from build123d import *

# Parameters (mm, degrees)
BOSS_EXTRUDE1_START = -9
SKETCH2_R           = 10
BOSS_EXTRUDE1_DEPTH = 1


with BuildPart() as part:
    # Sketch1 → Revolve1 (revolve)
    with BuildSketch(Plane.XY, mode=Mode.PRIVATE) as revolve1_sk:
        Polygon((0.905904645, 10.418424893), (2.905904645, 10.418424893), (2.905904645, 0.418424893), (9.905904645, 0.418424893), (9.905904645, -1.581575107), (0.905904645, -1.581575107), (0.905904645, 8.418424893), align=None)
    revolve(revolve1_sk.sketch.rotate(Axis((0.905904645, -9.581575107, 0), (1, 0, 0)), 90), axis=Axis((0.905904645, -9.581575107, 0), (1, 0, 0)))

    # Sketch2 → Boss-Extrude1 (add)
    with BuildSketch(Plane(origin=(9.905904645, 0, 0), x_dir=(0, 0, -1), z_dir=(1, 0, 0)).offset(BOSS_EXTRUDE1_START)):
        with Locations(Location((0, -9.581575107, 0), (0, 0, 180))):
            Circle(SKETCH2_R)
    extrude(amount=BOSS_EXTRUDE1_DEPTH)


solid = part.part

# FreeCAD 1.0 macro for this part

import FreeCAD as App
import Part
import Sketcher
from FreeCAD import Vector
Q = App.Units.Quantity

doc = App.newDocument("Part")
params = doc.addObject("Spreadsheet::Sheet", "Params")
for row, (alias, value) in enumerate([
    ("sketch1_width", "2 mm"),
    ("sketch1_width2", "9 mm"),
    ("sketch1_height", "12 mm"),
    ("revolution_angle", "360 deg"),
    ("sketch2_diameter", "20 mm"),
    ("pad1_length", "1 mm"),
], start=1):
    params.set(f"A{row}", alias)
    params.set(f"B{row}", "=" + value)
    params.setAlias(f"B{row}", alias)

body = doc.addObject("PartDesign::Body", "Body")

sketch1 = doc.addObject("Sketcher::SketchObject", "Sketch")
body.addObject(sketch1)
sketch1.AttachmentSupport = (doc.XY_Plane, [""])
sketch1.MapMode = "FlatFace"
sketch1.addGeometry([
    Part.LineSegment(Vector(2.905905, 10.418425, 0), Vector(0.905905, 10.418425, 0)),
    Part.LineSegment(Vector(0.905905, 10.418425, 0), Vector(0.905905, -1.581575, 0)),
    Part.LineSegment(Vector(0.905905, -1.581575, 0), Vector(9.905905, -1.581575, 0)),
    Part.LineSegment(Vector(9.905905, -1.581575, 0), Vector(9.905905, 0.418425, 0)),
    Part.LineSegment(Vector(9.905905, 0.418425, 0), Vector(2.905905, 0.418425, 0)),
    Part.LineSegment(Vector(2.905905, 0.418425, 0), Vector(2.905905, 10.418425, 0)),
], False)
sketch1.addGeometry(Part.LineSegment(Vector(0.905905, -9.581575, 0), Vector(9.905905, -9.581575, 0)), True)
sketch1.addConstraint([
    Sketcher.Constraint("Coincident", 0, 2, 1, 1),
    Sketcher.Constraint("Coincident", 1, 2, 2, 1),
    Sketcher.Constraint("Coincident", 2, 2, 3, 1),
    Sketcher.Constraint("Coincident", 3, 2, 4, 1),
    Sketcher.Constraint("Coincident", 4, 2, 5, 1),
    Sketcher.Constraint("Coincident", 5, 2, 0, 1),
    Sketcher.Constraint("Horizontal", 0),
    Sketcher.Constraint("Vertical", 1),
    Sketcher.Constraint("Horizontal", 2),
    Sketcher.Constraint("Vertical", 3),
    Sketcher.Constraint("Horizontal", 4),
    Sketcher.Constraint("Vertical", 5),
    Sketcher.Constraint("Horizontal", 6),
    Sketcher.Constraint("Vertical", 1, 2, 6, 1),
    Sketcher.Constraint("Vertical", 3, 2, 6, 2),
    Sketcher.Constraint("Equal", 0, 3),
    Sketcher.Constraint("DistanceX", 0, 2, 0, 1, Q("2 mm")),
    Sketcher.Constraint("DistanceX", 2, 1, 2, 2, Q("9 mm")),
    Sketcher.Constraint("DistanceY", 1, 2, 1, 1, Q("12 mm")),
    Sketcher.Constraint("DistanceY", 6, 1, 1, 2, Q("8 mm")),
    Sketcher.Constraint("DistanceX", -1, 1, 0, 2, Q("0.905905 mm")),
    Sketcher.Constraint("DistanceY", -1, 1, 0, 2, Q("10.418425 mm")),
])
sketch1.setExpression("Constraints[16]", "Params.sketch1_width")
sketch1.setExpression("Constraints[17]", "Params.sketch1_width2")
sketch1.setExpression("Constraints[18]", "Params.sketch1_height")
revolution = doc.addObject("PartDesign::Revolution", "Revolution")
body.addObject(revolution)
revolution.Profile = sketch1
revolution.ReferenceAxis = (sketch1, ["Axis0"])
revolution.setExpression("Angle", "Params.revolution_angle")

sketch2 = doc.addObject("Sketcher::SketchObject", "Sketch001")
body.addObject(sketch2)
sketch2.AttachmentSupport = (doc.YZ_Plane, [""])
sketch2.MapMode = "FlatFace"
sketch2.AttachmentOffset = App.Placement(Vector(0, 0, 0.905905), App.Rotation())
sketch2.addGeometry(Part.Circle(Vector(-9.581575, 0, 0), Vector(0, 0, 1), 10), False)
sketch2.addConstraint([
    Sketcher.Constraint("PointOnObject", 0, 3, -1),
    Sketcher.Constraint("Diameter", 0, Q("20 mm")),
    Sketcher.Constraint("DistanceX", 0, 3, -1, 1, Q("9.581575 mm")),
])
sketch2.setExpression("Constraints[1]", "Params.sketch2_diameter")
pad1 = doc.addObject("PartDesign::Pad", "Pad")
body.addObject(pad1)
pad1.Profile = sketch2
pad1.setExpression("Length", "Params.pad1_length")

doc.recompute()
